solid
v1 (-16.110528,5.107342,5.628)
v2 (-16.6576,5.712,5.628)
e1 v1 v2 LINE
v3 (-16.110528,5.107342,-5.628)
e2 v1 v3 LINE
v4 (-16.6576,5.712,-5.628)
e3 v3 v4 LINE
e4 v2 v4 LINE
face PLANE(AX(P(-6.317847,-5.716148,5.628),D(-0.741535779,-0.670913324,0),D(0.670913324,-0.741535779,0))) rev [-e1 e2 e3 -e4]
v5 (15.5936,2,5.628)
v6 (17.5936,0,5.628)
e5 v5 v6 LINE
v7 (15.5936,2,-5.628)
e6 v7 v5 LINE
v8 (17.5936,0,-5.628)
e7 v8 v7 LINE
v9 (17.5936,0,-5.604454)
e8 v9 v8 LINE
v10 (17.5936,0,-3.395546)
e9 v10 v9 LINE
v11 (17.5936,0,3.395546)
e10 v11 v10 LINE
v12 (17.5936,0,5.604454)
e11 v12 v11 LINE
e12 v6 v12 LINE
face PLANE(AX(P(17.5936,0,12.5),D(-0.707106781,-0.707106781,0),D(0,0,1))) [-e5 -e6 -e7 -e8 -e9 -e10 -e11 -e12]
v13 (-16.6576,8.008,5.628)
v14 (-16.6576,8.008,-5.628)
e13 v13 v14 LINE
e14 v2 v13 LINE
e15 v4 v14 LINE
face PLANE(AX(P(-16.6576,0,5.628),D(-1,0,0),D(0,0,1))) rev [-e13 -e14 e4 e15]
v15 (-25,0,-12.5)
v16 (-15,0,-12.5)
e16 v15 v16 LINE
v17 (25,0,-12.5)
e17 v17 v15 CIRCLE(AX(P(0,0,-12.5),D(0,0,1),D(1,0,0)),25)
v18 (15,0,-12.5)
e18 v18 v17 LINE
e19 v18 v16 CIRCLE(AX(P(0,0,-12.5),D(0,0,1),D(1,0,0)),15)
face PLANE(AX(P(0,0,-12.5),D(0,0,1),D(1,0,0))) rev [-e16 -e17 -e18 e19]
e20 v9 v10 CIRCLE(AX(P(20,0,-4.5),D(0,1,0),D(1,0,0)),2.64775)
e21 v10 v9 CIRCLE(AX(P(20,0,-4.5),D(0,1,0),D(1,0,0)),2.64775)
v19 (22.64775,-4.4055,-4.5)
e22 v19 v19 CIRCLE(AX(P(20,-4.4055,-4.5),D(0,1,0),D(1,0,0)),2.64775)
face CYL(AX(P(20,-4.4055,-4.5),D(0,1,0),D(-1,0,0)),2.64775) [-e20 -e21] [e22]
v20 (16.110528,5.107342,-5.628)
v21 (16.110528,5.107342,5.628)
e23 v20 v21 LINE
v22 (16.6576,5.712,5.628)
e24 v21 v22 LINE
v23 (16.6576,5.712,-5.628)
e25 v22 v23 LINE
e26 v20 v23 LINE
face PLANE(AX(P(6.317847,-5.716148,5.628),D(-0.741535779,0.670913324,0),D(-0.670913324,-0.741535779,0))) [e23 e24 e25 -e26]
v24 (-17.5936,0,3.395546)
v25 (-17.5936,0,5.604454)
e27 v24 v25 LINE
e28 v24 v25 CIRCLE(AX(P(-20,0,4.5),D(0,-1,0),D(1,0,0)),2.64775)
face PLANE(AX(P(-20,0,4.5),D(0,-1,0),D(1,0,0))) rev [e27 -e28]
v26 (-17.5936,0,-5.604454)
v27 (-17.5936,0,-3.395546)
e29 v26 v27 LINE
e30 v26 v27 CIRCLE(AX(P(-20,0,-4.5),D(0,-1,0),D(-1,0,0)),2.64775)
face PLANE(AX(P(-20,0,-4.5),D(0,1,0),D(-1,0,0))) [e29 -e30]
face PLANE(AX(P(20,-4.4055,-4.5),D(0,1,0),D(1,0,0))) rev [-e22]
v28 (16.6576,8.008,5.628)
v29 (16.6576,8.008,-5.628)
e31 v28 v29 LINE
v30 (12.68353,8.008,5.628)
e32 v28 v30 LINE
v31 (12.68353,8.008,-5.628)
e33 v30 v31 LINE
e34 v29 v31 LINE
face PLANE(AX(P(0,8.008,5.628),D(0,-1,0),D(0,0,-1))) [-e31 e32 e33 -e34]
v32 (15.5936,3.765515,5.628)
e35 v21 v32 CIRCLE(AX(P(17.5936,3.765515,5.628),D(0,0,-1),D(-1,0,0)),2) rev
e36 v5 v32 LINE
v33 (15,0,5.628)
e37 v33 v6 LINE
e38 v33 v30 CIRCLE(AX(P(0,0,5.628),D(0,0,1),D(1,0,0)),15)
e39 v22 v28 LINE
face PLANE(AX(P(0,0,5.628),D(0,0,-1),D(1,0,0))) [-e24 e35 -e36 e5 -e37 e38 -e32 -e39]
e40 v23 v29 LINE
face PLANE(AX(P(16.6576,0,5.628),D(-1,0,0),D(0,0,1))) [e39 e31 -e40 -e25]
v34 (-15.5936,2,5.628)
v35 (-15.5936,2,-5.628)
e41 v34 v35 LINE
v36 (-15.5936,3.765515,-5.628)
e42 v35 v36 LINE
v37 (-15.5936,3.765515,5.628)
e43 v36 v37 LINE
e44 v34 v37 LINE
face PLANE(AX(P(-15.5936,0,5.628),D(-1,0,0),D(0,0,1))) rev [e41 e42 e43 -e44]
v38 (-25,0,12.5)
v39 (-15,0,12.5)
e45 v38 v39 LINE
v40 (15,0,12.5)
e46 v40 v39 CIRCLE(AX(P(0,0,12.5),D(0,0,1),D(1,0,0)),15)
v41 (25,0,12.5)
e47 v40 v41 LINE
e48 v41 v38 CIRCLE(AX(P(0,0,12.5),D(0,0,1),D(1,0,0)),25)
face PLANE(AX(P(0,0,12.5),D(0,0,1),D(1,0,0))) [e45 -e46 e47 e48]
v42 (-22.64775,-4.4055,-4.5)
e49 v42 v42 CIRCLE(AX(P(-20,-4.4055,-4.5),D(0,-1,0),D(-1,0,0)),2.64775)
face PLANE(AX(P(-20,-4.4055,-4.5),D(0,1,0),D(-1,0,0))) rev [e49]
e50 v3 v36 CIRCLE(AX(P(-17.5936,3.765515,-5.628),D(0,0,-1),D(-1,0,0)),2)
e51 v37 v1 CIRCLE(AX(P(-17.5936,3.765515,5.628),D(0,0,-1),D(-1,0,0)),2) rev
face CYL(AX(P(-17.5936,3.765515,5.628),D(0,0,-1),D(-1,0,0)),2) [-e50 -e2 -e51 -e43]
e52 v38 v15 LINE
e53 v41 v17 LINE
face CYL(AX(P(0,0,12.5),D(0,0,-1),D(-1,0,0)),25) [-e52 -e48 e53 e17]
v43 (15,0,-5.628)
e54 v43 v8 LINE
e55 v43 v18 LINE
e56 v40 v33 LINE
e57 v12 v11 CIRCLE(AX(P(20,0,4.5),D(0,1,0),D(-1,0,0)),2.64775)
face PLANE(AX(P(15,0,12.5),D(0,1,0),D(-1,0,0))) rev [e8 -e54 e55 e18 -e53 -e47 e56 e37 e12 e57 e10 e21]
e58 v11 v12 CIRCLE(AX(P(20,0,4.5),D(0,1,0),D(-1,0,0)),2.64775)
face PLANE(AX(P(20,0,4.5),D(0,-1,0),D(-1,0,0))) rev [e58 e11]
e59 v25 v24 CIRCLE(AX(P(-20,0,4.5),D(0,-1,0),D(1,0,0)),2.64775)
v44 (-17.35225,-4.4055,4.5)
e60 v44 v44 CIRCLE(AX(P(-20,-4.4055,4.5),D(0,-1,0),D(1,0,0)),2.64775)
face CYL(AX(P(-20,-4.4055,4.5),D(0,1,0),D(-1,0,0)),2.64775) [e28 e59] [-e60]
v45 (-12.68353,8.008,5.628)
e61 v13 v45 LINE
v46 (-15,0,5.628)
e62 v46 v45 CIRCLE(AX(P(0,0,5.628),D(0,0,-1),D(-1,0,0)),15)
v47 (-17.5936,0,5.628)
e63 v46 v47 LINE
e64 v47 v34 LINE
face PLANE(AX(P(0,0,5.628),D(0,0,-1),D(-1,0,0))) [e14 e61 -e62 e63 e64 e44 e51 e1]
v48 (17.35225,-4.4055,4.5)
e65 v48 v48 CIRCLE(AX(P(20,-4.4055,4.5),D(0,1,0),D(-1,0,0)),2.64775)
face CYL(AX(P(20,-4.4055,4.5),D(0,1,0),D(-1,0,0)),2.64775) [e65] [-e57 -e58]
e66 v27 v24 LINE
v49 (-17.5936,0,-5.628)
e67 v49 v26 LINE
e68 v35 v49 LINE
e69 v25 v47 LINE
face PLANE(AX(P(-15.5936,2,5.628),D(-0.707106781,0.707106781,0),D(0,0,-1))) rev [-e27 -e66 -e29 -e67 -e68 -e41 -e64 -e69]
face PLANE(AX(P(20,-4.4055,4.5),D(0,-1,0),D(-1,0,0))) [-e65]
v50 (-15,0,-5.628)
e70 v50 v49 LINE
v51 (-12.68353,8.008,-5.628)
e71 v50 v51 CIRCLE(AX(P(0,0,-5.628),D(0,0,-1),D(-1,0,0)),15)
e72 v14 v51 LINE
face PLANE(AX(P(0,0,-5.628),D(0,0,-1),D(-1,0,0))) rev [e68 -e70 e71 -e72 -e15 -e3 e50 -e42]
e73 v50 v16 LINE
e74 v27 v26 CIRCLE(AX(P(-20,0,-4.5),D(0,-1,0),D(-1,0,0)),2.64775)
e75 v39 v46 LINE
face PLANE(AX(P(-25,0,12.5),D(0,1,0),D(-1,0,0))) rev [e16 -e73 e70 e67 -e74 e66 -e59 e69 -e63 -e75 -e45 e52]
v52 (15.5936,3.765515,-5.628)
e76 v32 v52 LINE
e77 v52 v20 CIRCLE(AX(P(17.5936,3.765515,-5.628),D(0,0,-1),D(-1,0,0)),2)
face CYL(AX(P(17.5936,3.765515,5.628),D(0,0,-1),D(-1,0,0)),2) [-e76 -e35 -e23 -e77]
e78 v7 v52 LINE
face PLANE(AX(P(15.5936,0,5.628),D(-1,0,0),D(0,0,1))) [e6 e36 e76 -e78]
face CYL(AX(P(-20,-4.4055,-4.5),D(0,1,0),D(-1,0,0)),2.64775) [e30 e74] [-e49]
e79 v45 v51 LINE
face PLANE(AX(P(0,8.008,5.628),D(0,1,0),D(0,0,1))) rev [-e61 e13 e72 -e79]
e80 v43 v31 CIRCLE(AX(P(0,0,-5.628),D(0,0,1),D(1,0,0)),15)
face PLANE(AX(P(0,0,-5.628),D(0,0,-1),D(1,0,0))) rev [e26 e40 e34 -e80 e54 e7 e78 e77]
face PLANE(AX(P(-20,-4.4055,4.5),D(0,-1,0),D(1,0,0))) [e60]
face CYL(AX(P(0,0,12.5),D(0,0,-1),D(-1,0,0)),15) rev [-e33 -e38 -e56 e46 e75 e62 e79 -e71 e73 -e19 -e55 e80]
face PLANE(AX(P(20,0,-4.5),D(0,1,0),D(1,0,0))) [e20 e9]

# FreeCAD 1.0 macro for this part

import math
import FreeCAD as App
import Part
import Sketcher
Q = App.Units.Quantity


def edges_at(feature, points):
    """Names of the edges that pass closest to the given points."""
    edges = feature.Shape.Edges
    near = lambda p: min(range(len(edges)), key=lambda i: edges[i].distToShape(Part.Vertex(*p))[0])
    return sorted({f"Edge{near(p) + 1}" for p in points})

doc = App.newDocument("Part")
body = doc.addObject("PartDesign::Body", "Body")

# Sketch on XY plane
sketch1 = body.newObject("Sketcher::SketchObject", "Sketch")
sketch1.AttachmentSupport = (doc.getObject("XY_Plane"), [""])
sketch1.MapMode = "FlatFace"
sketch1.addGeometry([
    Part.LineSegment(App.Vector(-25, 0, 0), App.Vector(-15, 0, 0)),
    Part.ArcOfCircle(Part.Circle(App.Vector(0, 0, 0), App.Vector(0, 0, 1), 15), math.radians(0), math.radians(180)),
    Part.LineSegment(App.Vector(15, 0, 0), App.Vector(25, 0, 0)),
    Part.ArcOfCircle(Part.Circle(App.Vector(0, 0, 0), App.Vector(0, 0, 1), 25), math.radians(0), math.radians(180)),
], False)
sketch1.addConstraint([
    Sketcher.Constraint("Coincident", 0, 2, 1, 2),
    Sketcher.Constraint("Coincident", 1, 1, 2, 1),
    Sketcher.Constraint("Coincident", 2, 2, 3, 1),
    Sketcher.Constraint("Coincident", 3, 2, 0, 1),
    Sketcher.Constraint("Horizontal", 0),
    Sketcher.Constraint("Horizontal", 2),
    Sketcher.Constraint("Coincident", 1, 3, -1, 1),
    Sketcher.Constraint("Coincident", 3, 3, -1, 1),
    Sketcher.Constraint("PointOnObject", 0, 2, -1),
    Sketcher.Constraint("PointOnObject", 1, 1, -1),
    Sketcher.Constraint("Radius", 1, Q("15 mm")),
    Sketcher.Constraint("Radius", 3, Q("25 mm")),
])
pad1 = body.newObject("PartDesign::Pad", "Pad")
pad1.Profile = sketch1
pad1.Length = 25
pad1.Midplane = True

# Sketch on XY plane
sketch2 = body.newObject("Sketcher::SketchObject", "Sketch001")
sketch2.AttachmentSupport = (doc.getObject("XY_Plane"), [""])
sketch2.MapMode = "FlatFace"
sketch2.addGeometry([
    Part.LineSegment(App.Vector(-15, 0, 0), App.Vector(-15.6, 0, 0)),  # 0
    Part.LineSegment(App.Vector(-15.6, 0, 0), App.Vector(-15.6, 4.5, 0)),  # 1
    Part.LineSegment(App.Vector(-15.6, 4.5, 0), App.Vector(-16.7, 5.7, 0)),  # 2
    Part.LineSegment(App.Vector(-16.7, 5.7, 0), App.Vector(-16.7, 8, 0)),  # 3
    Part.LineSegment(App.Vector(-16.7, 8, 0), App.Vector(-12.7, 8, 0)),  # 4
    Part.ArcOfCircle(Part.Circle(App.Vector(0, 0, 0), App.Vector(0, 0, 1), 15), math.radians(148), math.radians(180)),  # 5
], False)
sketch2.addConstraint([
    Sketcher.Constraint("Coincident", 0, 2, 1, 1),
    Sketcher.Constraint("Coincident", 1, 2, 2, 1),
    Sketcher.Constraint("Coincident", 2, 2, 3, 1),
    Sketcher.Constraint("Coincident", 3, 2, 4, 1),
    Sketcher.Constraint("Coincident", 4, 2, 5, 1),
    Sketcher.Constraint("Coincident", 5, 2, 0, 1),
    Sketcher.Constraint("Horizontal", 0),
    Sketcher.Constraint("Vertical", 1),
    Sketcher.Constraint("Vertical", 3),
    Sketcher.Constraint("Horizontal", 4),
    Sketcher.Constraint("Coincident", 5, 3, -1, 1),
    Sketcher.Constraint("PointOnObject", 0, 2, -1),
    Sketcher.Constraint("Radius", 5, Q("15 mm")),
    Sketcher.Constraint("DistanceY", 1, 1, 1, 2, Q("4.536 mm")),
    Sketcher.Constraint("DistanceY", 3, 1, 3, 2, Q("2.296 mm")),
    Sketcher.Constraint("DistanceX", 0, 2, 0, 1, Q("0.5936 mm")),
    Sketcher.Constraint("DistanceY", -1, 1, 2, 2, Q("5.712 mm")),
    Sketcher.Constraint("DistanceX", 2, 2, 1, 2, Q("1.064 mm")),
])
pocket1 = body.newObject("PartDesign::Pocket", "Pocket")
pocket1.Profile = sketch2
pocket1.Length = 11.256
pocket1.Midplane = True
doc.recompute()

mirrored = body.newObject("PartDesign::Mirrored", "Mirrored")
mirrored.Originals = [pocket1]
mirrored.MirrorPlane = (doc.getObject("YZ_Plane"), [""])
body.Tip = mirrored
doc.recompute()

fillet = body.newObject("PartDesign::Fillet", "Fillet")
fillet.Base = (mirrored, edges_at(mirrored, [(-15.594, 4.536, 0), (15.594, 4.536, 0)]))
fillet.Radius = 2
doc.recompute()

chamfer = body.newObject("PartDesign::Chamfer", "Chamfer")
chamfer.Base = (fillet, edges_at(fillet, [(-15.594, 0, 0), (15.594, 0, 0)]))
chamfer.Size = 2

# Sketch on XZ plane
sketch3 = body.newObject("Sketcher::SketchObject", "Sketch002")
sketch3.AttachmentSupport = (doc.getObject("XZ_Plane"), [""])
sketch3.MapMode = "FlatFace"
sketch3.addGeometry([
    Part.Circle(App.Vector(-20, 4.5, 0), App.Vector(0, 0, 1), 2.6),
    Part.Circle(App.Vector(-20, -4.5, 0), App.Vector(0, 0, 1), 2.6),
], False)
sketch3.addConstraint([
    Sketcher.Constraint("Equal", 0, 1),
    Sketcher.Constraint("Symmetric", 0, 3, 1, 3, -1),
    Sketcher.Constraint("DistanceX", 0, 3, -1, 1, Q("20 mm")),
    Sketcher.Constraint("DistanceY", 1, 3, 0, 3, Q("9 mm")),
    Sketcher.Constraint("Diameter", 0, Q("5.2955 mm")),
])
pad2 = body.newObject("PartDesign::Pad", "Pad001")
pad2.Profile = sketch3
pad2.Length = 4.4055
doc.recompute()

mirrored2 = body.newObject("PartDesign::Mirrored", "Mirrored001")
mirrored2.Originals = [pad2]
mirrored2.MirrorPlane = (doc.getObject("YZ_Plane"), [""])
body.Tip = mirrored2

doc.recompute()
